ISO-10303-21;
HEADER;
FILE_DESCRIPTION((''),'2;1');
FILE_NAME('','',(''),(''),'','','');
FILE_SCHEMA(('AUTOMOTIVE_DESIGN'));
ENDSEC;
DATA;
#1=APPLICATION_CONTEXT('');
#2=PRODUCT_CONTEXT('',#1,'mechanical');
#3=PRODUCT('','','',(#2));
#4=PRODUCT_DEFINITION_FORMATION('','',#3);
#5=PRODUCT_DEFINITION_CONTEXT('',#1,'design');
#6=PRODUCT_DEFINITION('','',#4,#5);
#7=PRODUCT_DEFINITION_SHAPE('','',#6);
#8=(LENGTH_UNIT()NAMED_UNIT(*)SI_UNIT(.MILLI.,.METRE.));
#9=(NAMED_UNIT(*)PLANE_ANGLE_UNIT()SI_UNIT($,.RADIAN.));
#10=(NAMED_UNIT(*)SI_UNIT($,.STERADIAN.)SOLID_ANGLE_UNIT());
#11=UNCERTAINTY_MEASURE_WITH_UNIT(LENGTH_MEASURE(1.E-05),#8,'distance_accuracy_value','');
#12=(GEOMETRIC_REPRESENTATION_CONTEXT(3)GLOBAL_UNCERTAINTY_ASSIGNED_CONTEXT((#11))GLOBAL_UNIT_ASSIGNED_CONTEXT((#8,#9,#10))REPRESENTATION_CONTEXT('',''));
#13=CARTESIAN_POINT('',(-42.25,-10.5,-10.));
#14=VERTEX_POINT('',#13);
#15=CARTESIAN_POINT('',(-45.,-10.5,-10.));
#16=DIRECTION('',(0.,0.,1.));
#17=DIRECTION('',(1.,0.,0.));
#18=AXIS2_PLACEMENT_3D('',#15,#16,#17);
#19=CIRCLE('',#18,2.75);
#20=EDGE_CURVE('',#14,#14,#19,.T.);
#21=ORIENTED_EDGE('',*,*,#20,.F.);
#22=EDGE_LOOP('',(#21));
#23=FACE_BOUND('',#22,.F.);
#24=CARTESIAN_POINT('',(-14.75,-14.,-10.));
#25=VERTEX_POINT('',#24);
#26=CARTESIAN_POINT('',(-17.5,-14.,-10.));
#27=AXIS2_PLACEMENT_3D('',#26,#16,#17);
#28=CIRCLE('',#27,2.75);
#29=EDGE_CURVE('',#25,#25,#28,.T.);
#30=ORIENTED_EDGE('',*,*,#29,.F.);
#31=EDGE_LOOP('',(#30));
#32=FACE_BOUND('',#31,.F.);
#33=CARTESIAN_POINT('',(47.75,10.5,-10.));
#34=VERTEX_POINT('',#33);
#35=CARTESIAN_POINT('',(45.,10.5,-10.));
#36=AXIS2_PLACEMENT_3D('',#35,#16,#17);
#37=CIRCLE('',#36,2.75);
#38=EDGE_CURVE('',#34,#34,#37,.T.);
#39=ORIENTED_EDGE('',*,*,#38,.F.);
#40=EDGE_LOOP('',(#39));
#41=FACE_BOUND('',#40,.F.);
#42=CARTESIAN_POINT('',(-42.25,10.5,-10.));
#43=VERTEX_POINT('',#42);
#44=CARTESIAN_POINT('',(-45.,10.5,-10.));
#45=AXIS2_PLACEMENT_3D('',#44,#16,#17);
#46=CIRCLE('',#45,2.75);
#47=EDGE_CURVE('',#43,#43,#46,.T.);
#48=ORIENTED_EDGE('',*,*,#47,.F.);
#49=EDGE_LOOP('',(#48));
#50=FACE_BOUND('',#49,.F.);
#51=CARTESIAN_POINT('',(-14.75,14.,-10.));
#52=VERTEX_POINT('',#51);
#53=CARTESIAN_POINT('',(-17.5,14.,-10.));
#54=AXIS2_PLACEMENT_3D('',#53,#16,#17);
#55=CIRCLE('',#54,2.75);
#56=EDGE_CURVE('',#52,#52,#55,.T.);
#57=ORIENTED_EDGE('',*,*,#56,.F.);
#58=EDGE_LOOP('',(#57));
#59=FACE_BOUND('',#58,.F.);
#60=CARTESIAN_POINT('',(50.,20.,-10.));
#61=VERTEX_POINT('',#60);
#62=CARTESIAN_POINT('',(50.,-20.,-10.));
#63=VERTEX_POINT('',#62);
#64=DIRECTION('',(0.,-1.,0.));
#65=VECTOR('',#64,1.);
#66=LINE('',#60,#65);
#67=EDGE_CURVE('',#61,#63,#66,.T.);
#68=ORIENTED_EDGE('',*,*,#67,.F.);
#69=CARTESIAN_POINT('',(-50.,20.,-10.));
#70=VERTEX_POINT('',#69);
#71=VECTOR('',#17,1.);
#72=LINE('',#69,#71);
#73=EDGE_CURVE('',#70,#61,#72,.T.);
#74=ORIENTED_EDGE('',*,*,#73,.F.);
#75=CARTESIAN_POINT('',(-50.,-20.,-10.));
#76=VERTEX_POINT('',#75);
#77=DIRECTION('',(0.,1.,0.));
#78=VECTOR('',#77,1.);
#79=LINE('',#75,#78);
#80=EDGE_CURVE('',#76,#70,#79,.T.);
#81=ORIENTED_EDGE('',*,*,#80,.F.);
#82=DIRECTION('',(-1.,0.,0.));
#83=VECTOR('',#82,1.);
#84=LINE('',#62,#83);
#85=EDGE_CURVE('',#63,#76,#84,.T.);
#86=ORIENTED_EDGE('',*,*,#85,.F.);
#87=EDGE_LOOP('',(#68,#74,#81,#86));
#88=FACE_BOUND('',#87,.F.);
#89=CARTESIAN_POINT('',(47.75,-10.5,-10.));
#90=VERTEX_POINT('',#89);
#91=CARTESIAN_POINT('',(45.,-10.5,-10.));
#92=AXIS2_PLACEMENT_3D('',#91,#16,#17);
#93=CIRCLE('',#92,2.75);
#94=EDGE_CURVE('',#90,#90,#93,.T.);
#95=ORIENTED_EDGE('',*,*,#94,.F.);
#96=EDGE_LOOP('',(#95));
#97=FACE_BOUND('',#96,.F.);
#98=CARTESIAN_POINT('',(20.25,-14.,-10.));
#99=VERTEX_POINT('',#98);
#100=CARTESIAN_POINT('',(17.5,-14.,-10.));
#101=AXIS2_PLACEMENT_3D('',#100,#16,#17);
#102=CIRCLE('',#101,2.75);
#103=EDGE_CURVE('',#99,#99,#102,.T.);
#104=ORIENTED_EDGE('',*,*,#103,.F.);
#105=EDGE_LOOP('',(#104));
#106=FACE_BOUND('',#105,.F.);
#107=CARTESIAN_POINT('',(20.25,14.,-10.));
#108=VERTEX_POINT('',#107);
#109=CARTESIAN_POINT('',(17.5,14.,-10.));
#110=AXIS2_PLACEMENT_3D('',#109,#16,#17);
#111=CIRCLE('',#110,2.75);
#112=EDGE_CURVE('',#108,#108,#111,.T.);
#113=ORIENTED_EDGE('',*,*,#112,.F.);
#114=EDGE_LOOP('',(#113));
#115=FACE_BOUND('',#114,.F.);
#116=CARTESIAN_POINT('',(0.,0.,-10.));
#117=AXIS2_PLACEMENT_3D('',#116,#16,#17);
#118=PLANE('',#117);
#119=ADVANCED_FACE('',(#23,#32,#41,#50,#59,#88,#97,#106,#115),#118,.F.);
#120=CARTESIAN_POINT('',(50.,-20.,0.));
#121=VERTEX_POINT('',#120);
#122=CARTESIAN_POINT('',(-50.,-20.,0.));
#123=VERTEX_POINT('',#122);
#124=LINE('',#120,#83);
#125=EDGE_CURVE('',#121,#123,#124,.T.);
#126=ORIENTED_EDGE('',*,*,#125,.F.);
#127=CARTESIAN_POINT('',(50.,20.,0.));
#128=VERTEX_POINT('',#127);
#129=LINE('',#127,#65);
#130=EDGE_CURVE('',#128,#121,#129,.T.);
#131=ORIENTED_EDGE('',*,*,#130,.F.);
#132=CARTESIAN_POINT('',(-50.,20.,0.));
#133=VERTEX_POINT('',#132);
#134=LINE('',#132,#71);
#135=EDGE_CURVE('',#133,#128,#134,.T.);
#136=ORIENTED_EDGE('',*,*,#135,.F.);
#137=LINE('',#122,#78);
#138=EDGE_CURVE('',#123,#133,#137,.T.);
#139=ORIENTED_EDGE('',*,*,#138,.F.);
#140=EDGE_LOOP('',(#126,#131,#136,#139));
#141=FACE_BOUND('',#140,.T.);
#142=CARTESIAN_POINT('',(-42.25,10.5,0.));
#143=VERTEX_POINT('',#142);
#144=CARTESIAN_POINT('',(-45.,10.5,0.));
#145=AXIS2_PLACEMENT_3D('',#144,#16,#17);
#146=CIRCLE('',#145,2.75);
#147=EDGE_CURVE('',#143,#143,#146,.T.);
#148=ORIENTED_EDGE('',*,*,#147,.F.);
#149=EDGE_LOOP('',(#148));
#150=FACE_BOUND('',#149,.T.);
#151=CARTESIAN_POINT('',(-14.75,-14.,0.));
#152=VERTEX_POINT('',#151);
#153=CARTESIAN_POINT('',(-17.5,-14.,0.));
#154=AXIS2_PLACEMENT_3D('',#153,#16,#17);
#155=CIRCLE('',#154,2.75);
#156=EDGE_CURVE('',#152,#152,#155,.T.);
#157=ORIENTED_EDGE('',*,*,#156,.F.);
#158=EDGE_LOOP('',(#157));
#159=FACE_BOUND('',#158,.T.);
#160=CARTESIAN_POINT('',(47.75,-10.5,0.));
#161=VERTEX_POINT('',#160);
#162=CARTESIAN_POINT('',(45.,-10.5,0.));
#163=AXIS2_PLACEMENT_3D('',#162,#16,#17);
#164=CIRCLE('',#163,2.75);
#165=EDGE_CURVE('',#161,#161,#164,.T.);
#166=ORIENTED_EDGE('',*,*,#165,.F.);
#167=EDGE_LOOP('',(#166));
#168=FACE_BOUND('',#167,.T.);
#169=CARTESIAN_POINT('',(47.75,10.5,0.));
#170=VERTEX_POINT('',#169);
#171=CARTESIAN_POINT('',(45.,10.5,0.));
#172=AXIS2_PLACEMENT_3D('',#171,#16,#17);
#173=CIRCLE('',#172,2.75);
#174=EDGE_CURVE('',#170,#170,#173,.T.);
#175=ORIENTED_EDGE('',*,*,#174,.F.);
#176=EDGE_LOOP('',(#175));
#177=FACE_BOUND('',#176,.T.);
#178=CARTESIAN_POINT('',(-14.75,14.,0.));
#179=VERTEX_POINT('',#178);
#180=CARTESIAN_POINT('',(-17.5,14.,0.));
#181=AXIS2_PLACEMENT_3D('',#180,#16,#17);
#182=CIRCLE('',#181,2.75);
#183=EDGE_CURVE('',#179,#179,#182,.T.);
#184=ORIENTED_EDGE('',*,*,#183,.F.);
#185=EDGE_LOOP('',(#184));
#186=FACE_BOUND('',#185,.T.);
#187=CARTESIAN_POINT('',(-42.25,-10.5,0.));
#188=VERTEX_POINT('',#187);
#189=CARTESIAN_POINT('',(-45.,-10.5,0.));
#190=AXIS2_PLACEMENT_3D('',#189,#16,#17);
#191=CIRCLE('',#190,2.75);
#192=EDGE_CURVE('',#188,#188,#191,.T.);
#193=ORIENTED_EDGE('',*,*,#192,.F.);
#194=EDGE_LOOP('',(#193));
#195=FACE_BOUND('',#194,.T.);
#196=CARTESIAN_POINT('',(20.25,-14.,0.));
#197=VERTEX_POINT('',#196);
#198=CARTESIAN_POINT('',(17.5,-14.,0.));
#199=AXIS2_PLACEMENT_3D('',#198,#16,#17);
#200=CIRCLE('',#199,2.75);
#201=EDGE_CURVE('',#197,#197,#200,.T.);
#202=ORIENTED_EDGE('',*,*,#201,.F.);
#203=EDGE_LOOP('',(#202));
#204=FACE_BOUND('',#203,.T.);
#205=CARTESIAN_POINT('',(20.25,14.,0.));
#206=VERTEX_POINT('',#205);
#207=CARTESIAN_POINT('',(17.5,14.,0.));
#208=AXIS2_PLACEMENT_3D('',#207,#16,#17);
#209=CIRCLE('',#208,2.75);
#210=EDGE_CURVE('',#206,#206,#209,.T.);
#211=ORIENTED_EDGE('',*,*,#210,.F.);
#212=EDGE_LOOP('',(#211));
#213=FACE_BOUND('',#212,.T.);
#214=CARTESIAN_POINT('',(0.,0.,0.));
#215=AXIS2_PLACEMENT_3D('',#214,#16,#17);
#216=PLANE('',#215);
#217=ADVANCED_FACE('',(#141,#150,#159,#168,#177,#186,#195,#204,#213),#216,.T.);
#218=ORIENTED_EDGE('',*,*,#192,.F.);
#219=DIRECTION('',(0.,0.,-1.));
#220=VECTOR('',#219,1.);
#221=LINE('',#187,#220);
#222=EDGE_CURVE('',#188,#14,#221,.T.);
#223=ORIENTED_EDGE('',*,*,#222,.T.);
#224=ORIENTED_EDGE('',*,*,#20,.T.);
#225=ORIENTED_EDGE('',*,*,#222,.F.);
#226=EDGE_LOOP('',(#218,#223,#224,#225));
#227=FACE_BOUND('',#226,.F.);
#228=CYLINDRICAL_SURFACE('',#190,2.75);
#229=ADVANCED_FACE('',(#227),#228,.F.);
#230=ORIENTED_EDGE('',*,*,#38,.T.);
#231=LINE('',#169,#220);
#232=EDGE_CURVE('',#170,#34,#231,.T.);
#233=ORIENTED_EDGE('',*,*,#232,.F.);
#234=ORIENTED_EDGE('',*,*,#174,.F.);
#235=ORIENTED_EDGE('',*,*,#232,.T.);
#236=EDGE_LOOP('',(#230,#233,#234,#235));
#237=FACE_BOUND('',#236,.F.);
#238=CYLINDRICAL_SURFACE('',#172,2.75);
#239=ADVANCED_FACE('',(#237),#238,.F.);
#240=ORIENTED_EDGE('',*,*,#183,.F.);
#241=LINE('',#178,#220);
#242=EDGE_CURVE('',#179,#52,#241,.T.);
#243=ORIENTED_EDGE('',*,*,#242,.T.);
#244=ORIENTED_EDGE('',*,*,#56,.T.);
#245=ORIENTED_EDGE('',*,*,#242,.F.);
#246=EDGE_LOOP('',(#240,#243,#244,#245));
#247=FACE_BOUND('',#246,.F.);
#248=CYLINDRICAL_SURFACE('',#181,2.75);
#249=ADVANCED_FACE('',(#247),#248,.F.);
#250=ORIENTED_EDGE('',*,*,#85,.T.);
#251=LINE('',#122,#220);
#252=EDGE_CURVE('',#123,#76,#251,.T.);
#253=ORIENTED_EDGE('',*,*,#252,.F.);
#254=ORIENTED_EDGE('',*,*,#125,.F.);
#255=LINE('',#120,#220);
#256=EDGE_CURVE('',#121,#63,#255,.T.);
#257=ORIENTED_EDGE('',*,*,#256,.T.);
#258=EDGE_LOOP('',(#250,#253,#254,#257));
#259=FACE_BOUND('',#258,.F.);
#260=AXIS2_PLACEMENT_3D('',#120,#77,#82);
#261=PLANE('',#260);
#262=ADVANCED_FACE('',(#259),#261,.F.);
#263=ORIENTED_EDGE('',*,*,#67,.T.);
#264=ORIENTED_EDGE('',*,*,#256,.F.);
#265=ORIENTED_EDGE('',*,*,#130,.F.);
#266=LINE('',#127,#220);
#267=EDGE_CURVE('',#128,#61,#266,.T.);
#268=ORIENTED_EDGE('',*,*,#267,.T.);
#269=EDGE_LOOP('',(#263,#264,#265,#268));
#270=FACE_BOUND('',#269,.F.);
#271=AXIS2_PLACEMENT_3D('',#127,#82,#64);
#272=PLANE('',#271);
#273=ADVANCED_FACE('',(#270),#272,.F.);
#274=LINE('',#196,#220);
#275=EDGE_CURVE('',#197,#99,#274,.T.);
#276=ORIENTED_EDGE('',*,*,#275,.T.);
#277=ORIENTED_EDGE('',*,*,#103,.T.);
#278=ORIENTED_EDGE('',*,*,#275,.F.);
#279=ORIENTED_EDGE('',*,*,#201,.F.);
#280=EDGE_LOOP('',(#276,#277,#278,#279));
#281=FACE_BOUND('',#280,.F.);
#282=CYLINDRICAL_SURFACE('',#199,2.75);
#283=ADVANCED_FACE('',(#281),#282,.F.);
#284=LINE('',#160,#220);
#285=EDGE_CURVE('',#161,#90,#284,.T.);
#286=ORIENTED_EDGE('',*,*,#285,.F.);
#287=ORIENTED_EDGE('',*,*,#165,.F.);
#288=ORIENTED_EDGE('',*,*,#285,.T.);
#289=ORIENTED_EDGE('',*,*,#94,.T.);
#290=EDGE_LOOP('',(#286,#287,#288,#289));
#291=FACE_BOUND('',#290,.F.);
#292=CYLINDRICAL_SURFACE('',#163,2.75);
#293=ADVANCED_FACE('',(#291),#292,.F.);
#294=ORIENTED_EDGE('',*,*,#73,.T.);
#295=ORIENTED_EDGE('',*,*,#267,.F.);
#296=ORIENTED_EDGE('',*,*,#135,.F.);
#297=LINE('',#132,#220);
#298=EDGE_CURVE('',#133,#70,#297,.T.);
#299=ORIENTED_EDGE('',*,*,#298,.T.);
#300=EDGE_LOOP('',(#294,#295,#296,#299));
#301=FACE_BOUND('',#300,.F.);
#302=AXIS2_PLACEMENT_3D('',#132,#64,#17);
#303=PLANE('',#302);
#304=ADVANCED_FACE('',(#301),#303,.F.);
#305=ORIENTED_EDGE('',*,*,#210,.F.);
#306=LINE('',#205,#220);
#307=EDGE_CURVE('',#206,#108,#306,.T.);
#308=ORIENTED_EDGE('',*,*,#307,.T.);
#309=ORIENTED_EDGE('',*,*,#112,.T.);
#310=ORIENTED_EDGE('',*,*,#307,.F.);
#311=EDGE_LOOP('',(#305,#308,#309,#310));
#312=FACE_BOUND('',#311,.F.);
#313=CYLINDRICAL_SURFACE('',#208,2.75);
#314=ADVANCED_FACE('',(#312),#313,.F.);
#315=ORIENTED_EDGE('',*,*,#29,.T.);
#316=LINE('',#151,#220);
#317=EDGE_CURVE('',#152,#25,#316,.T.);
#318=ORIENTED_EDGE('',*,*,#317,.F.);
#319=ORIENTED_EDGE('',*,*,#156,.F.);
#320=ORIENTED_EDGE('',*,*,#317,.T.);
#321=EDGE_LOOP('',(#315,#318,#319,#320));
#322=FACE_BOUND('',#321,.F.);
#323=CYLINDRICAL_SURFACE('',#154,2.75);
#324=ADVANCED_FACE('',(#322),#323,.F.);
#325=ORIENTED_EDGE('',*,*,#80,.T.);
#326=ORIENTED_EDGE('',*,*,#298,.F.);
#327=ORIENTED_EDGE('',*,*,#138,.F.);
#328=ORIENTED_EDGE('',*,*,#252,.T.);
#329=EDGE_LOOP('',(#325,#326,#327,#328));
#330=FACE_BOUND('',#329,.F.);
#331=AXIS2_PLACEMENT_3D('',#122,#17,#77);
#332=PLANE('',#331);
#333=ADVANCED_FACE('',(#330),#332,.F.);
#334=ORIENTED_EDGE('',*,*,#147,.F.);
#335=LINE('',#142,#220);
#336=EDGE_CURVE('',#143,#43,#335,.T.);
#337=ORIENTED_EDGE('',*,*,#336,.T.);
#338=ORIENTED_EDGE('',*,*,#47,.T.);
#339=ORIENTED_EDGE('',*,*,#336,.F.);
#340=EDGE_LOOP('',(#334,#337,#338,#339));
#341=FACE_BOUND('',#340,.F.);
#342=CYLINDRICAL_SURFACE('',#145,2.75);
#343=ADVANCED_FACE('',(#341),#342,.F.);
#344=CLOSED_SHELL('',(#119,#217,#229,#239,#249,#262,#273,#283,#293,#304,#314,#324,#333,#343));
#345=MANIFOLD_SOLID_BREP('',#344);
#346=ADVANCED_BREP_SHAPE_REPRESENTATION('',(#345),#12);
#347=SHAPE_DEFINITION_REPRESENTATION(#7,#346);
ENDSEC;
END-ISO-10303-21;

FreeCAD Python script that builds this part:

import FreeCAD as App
import Part
import Sketcher
from FreeCAD import Vector

doc = App.newDocument("Part")
body = doc.addObject("PartDesign::Body", "Body")

sketch1 = doc.addObject("Sketcher::SketchObject", "Sketch")
body.addObject(sketch1)
sketch1.AttachmentSupport = (doc.XY_Plane, [""])
sketch1.MapMode = "FlatFace"
sketch1.addGeometry(Part.LineSegment(Vector(50, 20, 0), Vector(-50, 20, 0)), False)
sketch1.addGeometry(Part.LineSegment(Vector(-50, 20, 0), Vector(-50, -20, 0)), False)
sketch1.addGeometry(Part.LineSegment(Vector(-50, -20, 0), Vector(50, -20, 0)), False)
sketch1.addGeometry(Part.LineSegment(Vector(50, -20, 0), Vector(50, 20, 0)), False)
sketch1.addGeometry(Part.Circle(Vector(-45, -10.5, 0), Vector(0, 0, 1), 2.8), False)
sketch1.addGeometry(Part.Circle(Vector(45, -10.5, 0), Vector(0, 0, 1), 2.8), False)
sketch1.addGeometry(Part.Circle(Vector(-45, 10.5, 0), Vector(0, 0, 1), 2.8), False)
sketch1.addGeometry(Part.Circle(Vector(45, 10.5, 0), Vector(0, 0, 1), 2.8), False)
sketch1.addConstraint(Sketcher.Constraint("Coincident", 0, 2, 1, 1))
sketch1.addConstraint(Sketcher.Constraint("Coincident", 1, 2, 2, 1))
sketch1.addConstraint(Sketcher.Constraint("Coincident", 2, 2, 3, 1))
sketch1.addConstraint(Sketcher.Constraint("Coincident", 3, 2, 0, 1))
sketch1.addConstraint(Sketcher.Constraint("Horizontal", 0))
sketch1.addConstraint(Sketcher.Constraint("Vertical", 1))
sketch1.addConstraint(Sketcher.Constraint("Horizontal", 2))
sketch1.addConstraint(Sketcher.Constraint("Vertical", 3))
sketch1.addConstraint(Sketcher.Constraint("Equal", 4, 5))
sketch1.addConstraint(Sketcher.Constraint("Equal", 5, 6))
sketch1.addConstraint(Sketcher.Constraint("Equal", 6, 7))
sketch1.addConstraint(Sketcher.Constraint("Symmetric", 5, 3, 6, 3, -1, 1))
sketch1.addConstraint(Sketcher.Constraint("Symmetric", 4, 3, 7, 3, -1, 1))
sketch1.addConstraint(Sketcher.Constraint("Symmetric", 0, 2, 2, 2, -1, 1))
sketch1.addConstraint(Sketcher.Constraint("Symmetric", 4, 3, 5, 3, -2))
sketch1.addConstraint(Sketcher.Constraint("Diameter", 4, 5.5))
sketch1.addConstraint(Sketcher.Constraint("DistanceX", 0, 2, 0, 1, 100.0))
sketch1.addConstraint(Sketcher.Constraint("DistanceY", 1, 2, 1, 1, 40.0))
sketch1.addConstraint(Sketcher.Constraint("DistanceX", 4, 3, 5, 3, 90.0))
sketch1.addConstraint(Sketcher.Constraint("DistanceY", 4, 3, 6, 3, 21.0))
pad1 = doc.addObject("PartDesign::Pad", "Pad")
body.addObject(pad1)
pad1.Profile = sketch1
pad1.Length = 10
pad1.Reversed = True

sketch2 = doc.addObject("Sketcher::SketchObject", "Sketch001")
body.addObject(sketch2)
sketch2.AttachmentSupport = (doc.XY_Plane, [""])
sketch2.MapMode = "FlatFace"
sketch2.addGeometry(Part.Circle(Vector(-17.5, 14, 0), Vector(0, 0, 1), 2.8), False)
sketch2.addGeometry(Part.Circle(Vector(17.5, 14, 0), Vector(0, 0, 1), 2.8), False)
sketch2.addGeometry(Part.Circle(Vector(-17.5, -14, 0), Vector(0, 0, 1), 2.8), False)
sketch2.addGeometry(Part.Circle(Vector(17.5, -14, 0), Vector(0, 0, 1), 2.8), False)
sketch2.addConstraint(Sketcher.Constraint("Equal", 0, 1))
sketch2.addConstraint(Sketcher.Constraint("Equal", 1, 2))
sketch2.addConstraint(Sketcher.Constraint("Equal", 2, 3))
sketch2.addConstraint(Sketcher.Constraint("Symmetric", 1, 3, 2, 3, -1, 1))
sketch2.addConstraint(Sketcher.Constraint("Symmetric", 0, 3, 3, 3, -1, 1))
sketch2.addConstraint(Sketcher.Constraint("Symmetric", 0, 3, 1, 3, -2))
sketch2.addConstraint(Sketcher.Constraint("Diameter", 0, 5.5))
sketch2.addConstraint(Sketcher.Constraint("DistanceY", -1, 1, 0, 3, 14.0))
sketch2.addConstraint(Sketcher.Constraint("DistanceX", 0, 3, 1, 3, 35.0))
pocket1 = doc.addObject("PartDesign::Pocket", "Pocket")
body.addObject(pocket1)
pocket1.Profile = sketch2
pocket1.Type = "ThroughAll"

doc.recompute()
